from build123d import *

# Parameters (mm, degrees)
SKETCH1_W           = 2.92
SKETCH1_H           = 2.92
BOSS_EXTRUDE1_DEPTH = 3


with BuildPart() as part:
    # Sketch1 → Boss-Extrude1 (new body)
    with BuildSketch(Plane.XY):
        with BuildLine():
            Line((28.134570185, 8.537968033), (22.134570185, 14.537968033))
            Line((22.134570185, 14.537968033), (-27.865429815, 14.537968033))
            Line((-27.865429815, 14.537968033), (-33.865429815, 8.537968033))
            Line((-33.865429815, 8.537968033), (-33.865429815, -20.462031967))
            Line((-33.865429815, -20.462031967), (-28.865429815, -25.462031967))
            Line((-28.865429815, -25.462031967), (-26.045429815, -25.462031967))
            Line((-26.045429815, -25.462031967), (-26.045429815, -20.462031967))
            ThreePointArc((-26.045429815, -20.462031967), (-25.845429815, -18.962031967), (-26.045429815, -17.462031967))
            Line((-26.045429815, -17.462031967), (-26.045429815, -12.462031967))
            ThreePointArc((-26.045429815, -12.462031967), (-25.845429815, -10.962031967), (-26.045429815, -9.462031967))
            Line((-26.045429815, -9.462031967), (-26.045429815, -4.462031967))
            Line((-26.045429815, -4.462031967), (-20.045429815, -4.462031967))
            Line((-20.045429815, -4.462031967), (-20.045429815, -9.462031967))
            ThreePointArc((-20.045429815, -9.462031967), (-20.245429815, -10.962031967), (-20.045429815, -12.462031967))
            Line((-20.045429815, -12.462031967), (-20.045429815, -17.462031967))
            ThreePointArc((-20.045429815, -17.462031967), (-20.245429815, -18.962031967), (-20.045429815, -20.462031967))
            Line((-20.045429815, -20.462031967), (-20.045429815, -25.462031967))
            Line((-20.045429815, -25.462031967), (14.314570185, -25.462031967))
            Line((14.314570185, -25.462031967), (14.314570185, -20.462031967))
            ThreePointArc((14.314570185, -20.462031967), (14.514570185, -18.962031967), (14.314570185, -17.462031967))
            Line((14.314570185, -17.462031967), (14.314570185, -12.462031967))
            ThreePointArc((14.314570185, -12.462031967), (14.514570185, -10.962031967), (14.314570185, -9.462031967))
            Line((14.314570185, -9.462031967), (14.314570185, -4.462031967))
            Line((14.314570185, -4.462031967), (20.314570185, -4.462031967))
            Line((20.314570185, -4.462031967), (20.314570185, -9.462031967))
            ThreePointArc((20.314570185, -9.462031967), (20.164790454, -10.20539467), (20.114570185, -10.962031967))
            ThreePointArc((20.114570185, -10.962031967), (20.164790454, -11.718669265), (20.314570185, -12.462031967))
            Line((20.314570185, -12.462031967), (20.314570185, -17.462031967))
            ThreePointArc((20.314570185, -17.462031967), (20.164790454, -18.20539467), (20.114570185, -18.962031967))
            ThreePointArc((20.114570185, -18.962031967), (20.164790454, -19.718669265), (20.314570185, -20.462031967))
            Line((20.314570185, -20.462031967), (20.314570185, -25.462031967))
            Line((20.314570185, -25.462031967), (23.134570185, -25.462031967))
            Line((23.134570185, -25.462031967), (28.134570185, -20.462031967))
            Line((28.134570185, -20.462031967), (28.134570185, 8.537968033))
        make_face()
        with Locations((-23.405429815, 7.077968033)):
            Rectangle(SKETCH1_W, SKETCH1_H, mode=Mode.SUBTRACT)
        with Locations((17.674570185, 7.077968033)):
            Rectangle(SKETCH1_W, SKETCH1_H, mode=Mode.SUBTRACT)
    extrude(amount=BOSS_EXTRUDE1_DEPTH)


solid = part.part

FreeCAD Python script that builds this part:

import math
import FreeCAD as App
import Part
import Sketcher
from FreeCAD import Vector

doc = App.newDocument("Part")
params = doc.addObject("Spreadsheet::Sheet", "Params")
for row, (alias, value) in enumerate([
    ("sketch1_width", "50 mm"),
    ("sketch1_width2", "6 mm"),
    ("sketch1_height", "29 mm"),
    ("sketch1_height2", "5 mm"),
    ("sketch1_width3", "2.82 mm"),
    ("pad1_length", "3 mm"),
], start=1):
    params.set(f"A{row}", alias)
    params.set(f"B{row}", "=" + value)
    params.setAlias(f"B{row}", alias)

body = doc.addObject("PartDesign::Body", "Body")

# Sketch on XY plane
sketch1 = body.newObject("Sketcher::SketchObject", "Sketch")
sketch1.AttachmentSupport = (doc.getObject("XY_Plane"), [""])
sketch1.MapMode = "FlatFace"
sketch1.addGeometry([
    Part.LineSegment(Vector(28.13457, 8.537968, 0), Vector(22.13457, 14.537968, 0)),  # 0
    Part.LineSegment(Vector(22.13457, 14.537968, 0), Vector(-27.86543, 14.537968, 0)),  # 1
    Part.LineSegment(Vector(-27.86543, 14.537968, 0), Vector(-33.86543, 8.537968, 0)),  # 2
    Part.LineSegment(Vector(-33.86543, 8.537968, 0), Vector(-33.86543, -20.462032, 0)),  # 3
    Part.LineSegment(Vector(-33.86543, -20.462032, 0), Vector(-28.86543, -25.462032, 0)),  # 4
    Part.LineSegment(Vector(-28.86543, -25.462032, 0), Vector(-26.04543, -25.462032, 0)),  # 5
    Part.LineSegment(Vector(-26.04543, -25.462032, 0), Vector(-26.04543, -20.462032, 0)),  # 6
    Part.ArcOfCircle(Part.Circle(Vector(-31.57043, -18.962032, 0), Vector(0, 0, 1), 5.725), math.radians(-15.189287), math.radians(15.189287)),  # 7
    Part.LineSegment(Vector(-26.04543, -17.462032, 0), Vector(-26.04543, -12.462032, 0)),  # 8
    Part.ArcOfCircle(Part.Circle(Vector(-31.57043, -10.962032, 0), Vector(0, 0, 1), 5.725), math.radians(-15.189287), math.radians(15.189287)),  # 9
    Part.LineSegment(Vector(-26.04543, -9.462032, 0), Vector(-26.04543, -4.462032, 0)),  # 10
    Part.LineSegment(Vector(-26.04543, -4.462032, 0), Vector(-20.04543, -4.462032, 0)),  # 11
    Part.LineSegment(Vector(-20.04543, -4.462032, 0), Vector(-20.04543, -9.462032, 0)),  # 12
    Part.ArcOfCircle(Part.Circle(Vector(-14.52043, -10.962032, 0), Vector(0, 0, 1), 5.725), math.radians(164.810713), math.radians(195.189287)),  # 13
    Part.LineSegment(Vector(-20.04543, -12.462032, 0), Vector(-20.04543, -17.462032, 0)),  # 14
    Part.ArcOfCircle(Part.Circle(Vector(-14.52043, -18.962032, 0), Vector(0, 0, 1), 5.725), math.radians(164.810713), math.radians(195.189287)),  # 15
    Part.LineSegment(Vector(-20.04543, -20.462032, 0), Vector(-20.04543, -25.462032, 0)),  # 16
    Part.LineSegment(Vector(-20.04543, -25.462032, 0), Vector(14.31457, -25.462032, 0)),  # 17
    Part.LineSegment(Vector(14.31457, -25.462032, 0), Vector(14.31457, -20.462032, 0)),  # 18
    Part.ArcOfCircle(Part.Circle(Vector(8.78957, -18.962032, 0), Vector(0, 0, 1), 5.725), math.radians(-15.189287), math.radians(15.189287)),  # 19
    Part.LineSegment(Vector(14.31457, -17.462032, 0), Vector(14.31457, -12.462032, 0)),  # 20
    Part.ArcOfCircle(Part.Circle(Vector(8.78957, -10.962032, 0), Vector(0, 0, 1), 5.725), math.radians(-15.189287), math.radians(15.189287)),  # 21
    Part.LineSegment(Vector(14.31457, -9.462032, 0), Vector(14.31457, -4.462032, 0)),  # 22
    Part.LineSegment(Vector(14.31457, -4.462032, 0), Vector(20.31457, -4.462032, 0)),  # 23
    Part.LineSegment(Vector(20.31457, -4.462032, 0), Vector(20.31457, -9.462032, 0)),  # 24
    Part.ArcOfCircle(Part.Circle(Vector(25.83957, -10.962032, 0), Vector(0, 0, 1), 5.725), math.radians(164.810713), math.radians(180)),  # 25
    Part.ArcOfCircle(Part.Circle(Vector(25.83957, -10.962032, 0), Vector(0, 0, 1), 5.725), math.radians(-180), math.radians(-164.810713)),  # 26
    Part.LineSegment(Vector(20.31457, -12.462032, 0), Vector(20.31457, -17.462032, 0)),  # 27
    Part.ArcOfCircle(Part.Circle(Vector(25.83957, -18.962032, 0), Vector(0, 0, 1), 5.725), math.radians(164.810713), math.radians(180)),  # 28
    Part.ArcOfCircle(Part.Circle(Vector(25.83957, -18.962032, 0), Vector(0, 0, 1), 5.725), math.radians(-180), math.radians(-164.810713)),  # 29
    Part.LineSegment(Vector(20.31457, -20.462032, 0), Vector(20.31457, -25.462032, 0)),  # 30
    Part.LineSegment(Vector(20.31457, -25.462032, 0), Vector(23.13457, -25.462032, 0)),  # 31
    Part.LineSegment(Vector(23.13457, -25.462032, 0), Vector(28.13457, -20.462032, 0)),  # 32
    Part.LineSegment(Vector(28.13457, -20.462032, 0), Vector(28.13457, 8.537968, 0)),  # 33
    Part.LineSegment(Vector(-21.94543, 5.617968, 0), Vector(-24.86543, 5.617968, 0)),  # 34
    Part.LineSegment(Vector(-24.86543, 5.617968, 0), Vector(-24.86543, 8.537968, 0)),  # 35
    Part.LineSegment(Vector(-24.86543, 8.537968, 0), Vector(-21.94543, 8.537968, 0)),  # 36
    Part.LineSegment(Vector(-21.94543, 8.537968, 0), Vector(-21.94543, 5.617968, 0)),  # 37
    Part.LineSegment(Vector(19.13457, 5.617968, 0), Vector(16.21457, 5.617968, 0)),  # 38
    Part.LineSegment(Vector(16.21457, 5.617968, 0), Vector(16.21457, 8.537968, 0)),  # 39
    Part.LineSegment(Vector(16.21457, 8.537968, 0), Vector(19.13457, 8.537968, 0)),  # 40
    Part.LineSegment(Vector(19.13457, 8.537968, 0), Vector(19.13457, 5.617968, 0)),  # 41
], False)
sketch1.addConstraint([
    Sketcher.Constraint("Coincident", 0, 2, 1, 1),
    Sketcher.Constraint("Coincident", 1, 2, 2, 1),
    Sketcher.Constraint("Coincident", 2, 2, 3, 1),
    Sketcher.Constraint("Coincident", 3, 2, 4, 1),
    Sketcher.Constraint("Coincident", 4, 2, 5, 1),
    Sketcher.Constraint("Coincident", 5, 2, 6, 1),
    Sketcher.Constraint("Coincident", 6, 2, 7, 1),
    Sketcher.Constraint("Coincident", 7, 2, 8, 1),
    Sketcher.Constraint("Coincident", 8, 2, 9, 1),
    Sketcher.Constraint("Coincident", 9, 2, 10, 1),
    Sketcher.Constraint("Coincident", 10, 2, 11, 1),
    Sketcher.Constraint("Coincident", 11, 2, 12, 1),
    Sketcher.Constraint("Coincident", 12, 2, 13, 1),
    Sketcher.Constraint("Coincident", 13, 2, 14, 1),
    Sketcher.Constraint("Coincident", 14, 2, 15, 1),
    Sketcher.Constraint("Coincident", 15, 2, 16, 1),
    Sketcher.Constraint("Coincident", 16, 2, 17, 1),
    Sketcher.Constraint("Coincident", 17, 2, 18, 1),
    Sketcher.Constraint("Coincident", 18, 2, 19, 1),
    Sketcher.Constraint("Coincident", 19, 2, 20, 1),
    Sketcher.Constraint("Coincident", 20, 2, 21, 1),
    Sketcher.Constraint("Coincident", 21, 2, 22, 1),
    Sketcher.Constraint("Coincident", 22, 2, 23, 1),
    Sketcher.Constraint("Coincident", 23, 2, 24, 1),
    Sketcher.Constraint("Coincident", 24, 2, 25, 1),
    Sketcher.Constraint("Tangent", 25, 2, 26, 1),
    Sketcher.Constraint("Coincident", 26, 2, 27, 1),
    Sketcher.Constraint("Coincident", 27, 2, 28, 1),
    Sketcher.Constraint("Tangent", 28, 2, 29, 1),
    Sketcher.Constraint("Coincident", 29, 2, 30, 1),
    Sketcher.Constraint("Coincident", 30, 2, 31, 1),
    Sketcher.Constraint("Coincident", 31, 2, 32, 1),
    Sketcher.Constraint("Coincident", 32, 2, 33, 1),
    Sketcher.Constraint("Coincident", 33, 2, 0, 1),
    Sketcher.Constraint("Coincident", 34, 2, 35, 1),
    Sketcher.Constraint("Coincident", 35, 2, 36, 1),
    Sketcher.Constraint("Coincident", 36, 2, 37, 1),
    Sketcher.Constraint("Coincident", 37, 2, 34, 1),
    Sketcher.Constraint("Coincident", 38, 2, 39, 1),
    Sketcher.Constraint("Coincident", 39, 2, 40, 1),
    Sketcher.Constraint("Coincident", 40, 2, 41, 1),
    Sketcher.Constraint("Coincident", 41, 2, 38, 1),
    Sketcher.Constraint("Horizontal", 1),
    Sketcher.Constraint("Vertical", 3),
    Sketcher.Constraint("Horizontal", 5),
    Sketcher.Constraint("Vertical", 6),
    Sketcher.Constraint("Vertical", 8),
    Sketcher.Constraint("Vertical", 10),
    Sketcher.Constraint("Horizontal", 11),
    Sketcher.Constraint("Vertical", 12),
    Sketcher.Constraint("Vertical", 14),
    Sketcher.Constraint("Vertical", 16),
    Sketcher.Constraint("Horizontal", 17),
    Sketcher.Constraint("Vertical", 18),
    Sketcher.Constraint("Vertical", 20),
    Sketcher.Constraint("Vertical", 22),
    Sketcher.Constraint("Horizontal", 23),
    Sketcher.Constraint("Vertical", 24),
    Sketcher.Constraint("Vertical", 27),
    Sketcher.Constraint("Vertical", 30),
    Sketcher.Constraint("Horizontal", 31),
    Sketcher.Constraint("Vertical", 33),
    Sketcher.Constraint("Horizontal", 34),
    Sketcher.Constraint("Vertical", 35),
    Sketcher.Constraint("Horizontal", 36),
    Sketcher.Constraint("Vertical", 37),
    Sketcher.Constraint("Horizontal", 38),
    Sketcher.Constraint("Vertical", 39),
    Sketcher.Constraint("Horizontal", 40),
    Sketcher.Constraint("Vertical", 41),
    Sketcher.Constraint("Equal", 7, 9),
    Sketcher.Constraint("Equal", 9, 13),
    Sketcher.Constraint("Equal", 13, 15),
    Sketcher.Constraint("Equal", 15, 19),
    Sketcher.Constraint("Equal", 19, 21),
    Sketcher.Constraint("Equal", 21, 25),
    Sketcher.Constraint("Equal", 25, 26),
    Sketcher.Constraint("Equal", 26, 28),
    Sketcher.Constraint("Equal", 28, 29),
    Sketcher.Constraint("Perpendicular", 0, 2),
    Sketcher.Constraint("Perpendicular", 2, 4),
    Sketcher.Constraint("Perpendicular", 4, 32),
    Sketcher.Constraint("Horizontal", 9, 3, 13, 3),
    Sketcher.Constraint("Horizontal", 7, 3, 15, 3),
    Sketcher.Constraint("Horizontal", 15, 3, 19, 3),
    Sketcher.Constraint("Horizontal", 13, 3, 21, 3),
    Sketcher.Constraint("Horizontal", 21, 3, 25, 3),
    Sketcher.Constraint("Horizontal", 19, 3, 28, 3),
    Sketcher.Constraint("Horizontal", 3, 2, 6, 2),
    Sketcher.Constraint("Horizontal", 9, 2, 12, 2),
    Sketcher.Constraint("Horizontal", 8, 2, 13, 2),
    Sketcher.Constraint("Horizontal", 7, 2, 14, 2),
    Sketcher.Constraint("Horizontal", 6, 2, 15, 2),
    Sketcher.Constraint("Horizontal", 5, 2, 16, 2),
    Sketcher.Constraint("Horizontal", 15, 2, 18, 2),
    Sketcher.Constraint("Horizontal", 14, 2, 19, 2),
    Sketcher.Constraint("Horizontal", 13, 2, 20, 2),
    Sketcher.Constraint("Horizontal", 12, 2, 21, 2),
    Sketcher.Constraint("Horizontal", 11, 2, 22, 2),
    Sketcher.Constraint("Horizontal", 21, 2, 24, 2),
    Sketcher.Constraint("Horizontal", 26, 3, 25, 2),
    Sketcher.Constraint("Horizontal", 20, 2, 26, 2),
    Sketcher.Constraint("Horizontal", 19, 2, 27, 2),
    Sketcher.Constraint("Horizontal", 29, 3, 28, 2),
    Sketcher.Constraint("Horizontal", 18, 2, 29, 2),
    Sketcher.Constraint("Horizontal", 17, 2, 30, 2),
    Sketcher.Constraint("Horizontal", 29, 2, 32, 2),
    Sketcher.Constraint("Horizontal", 2, 2, 33, 2),
    Sketcher.Constraint("Horizontal", 33, 2, 35, 2),
    Sketcher.Constraint("Horizontal", 37, 2, 38, 2),
    Sketcher.Constraint("Horizontal", 36, 2, 39, 2),
    Sketcher.Constraint("Vertical", 7, 3, 9, 3),
    Sketcher.Constraint("Vertical", 6, 2, 7, 2),
    Sketcher.Constraint("Vertical", 8, 2, 9, 2),
    Sketcher.Constraint("Equal", 11, 23),
    Sketcher.Constraint("Equal", 5, 31),
    Sketcher.Constraint("Equal", 36, 38),
    Sketcher.Constraint("Equal", 6, 8),
    Sketcher.Constraint("Equal", 8, 10),
    Sketcher.Constraint("Equal", 40, 35),
    Sketcher.Constraint("Equal", 0, 2),
    Sketcher.Constraint("DistanceX", 1, 2, 1, 1, 50.0),
    Sketcher.Constraint("DistanceX", 11, 1, 11, 2, 6.0),
    Sketcher.Constraint("DistanceY", 3, 2, 3, 1, 29.0),
    Sketcher.Constraint("DistanceY", 6, 1, 6, 2, 5.0),
    Sketcher.Constraint("Radius", 7, 5.725),
    Sketcher.Constraint("DistanceY", 7, 3, 9, 3, 8.0),
    Sketcher.Constraint("DistanceX", 2, 2, 1, 2, 6.0),
    Sketcher.Constraint("DistanceX", 1, 2, 34, 2, 3.0),
    Sketcher.Constraint("DistanceX", 40, 2, 0, 2, 3.0),
    Sketcher.Constraint("DistanceX", 5, 1, 5, 2, 2.82),
    Sketcher.Constraint("DistanceX", 34, 2, 34, 1, 2.92),
    Sketcher.Constraint("DistanceX", 7, 3, -1, 1, 31.57043),
    Sketcher.Constraint("DistanceY", 7, 3, -1, 1, 18.962032),
])
sketch1.setExpression("Constraints[121]", "Params.sketch1_width")
sketch1.setExpression("Constraints[122]", "Params.sketch1_width2")
sketch1.setExpression("Constraints[123]", "Params.sketch1_height")
sketch1.setExpression("Constraints[124]", "Params.sketch1_height2")
sketch1.setExpression("Constraints[130]", "Params.sketch1_width3")
pad1 = body.newObject("PartDesign::Pad", "Pad")
pad1.Profile = sketch1
pad1.setExpression("Length", "Params.pad1_length")

doc.recompute()
